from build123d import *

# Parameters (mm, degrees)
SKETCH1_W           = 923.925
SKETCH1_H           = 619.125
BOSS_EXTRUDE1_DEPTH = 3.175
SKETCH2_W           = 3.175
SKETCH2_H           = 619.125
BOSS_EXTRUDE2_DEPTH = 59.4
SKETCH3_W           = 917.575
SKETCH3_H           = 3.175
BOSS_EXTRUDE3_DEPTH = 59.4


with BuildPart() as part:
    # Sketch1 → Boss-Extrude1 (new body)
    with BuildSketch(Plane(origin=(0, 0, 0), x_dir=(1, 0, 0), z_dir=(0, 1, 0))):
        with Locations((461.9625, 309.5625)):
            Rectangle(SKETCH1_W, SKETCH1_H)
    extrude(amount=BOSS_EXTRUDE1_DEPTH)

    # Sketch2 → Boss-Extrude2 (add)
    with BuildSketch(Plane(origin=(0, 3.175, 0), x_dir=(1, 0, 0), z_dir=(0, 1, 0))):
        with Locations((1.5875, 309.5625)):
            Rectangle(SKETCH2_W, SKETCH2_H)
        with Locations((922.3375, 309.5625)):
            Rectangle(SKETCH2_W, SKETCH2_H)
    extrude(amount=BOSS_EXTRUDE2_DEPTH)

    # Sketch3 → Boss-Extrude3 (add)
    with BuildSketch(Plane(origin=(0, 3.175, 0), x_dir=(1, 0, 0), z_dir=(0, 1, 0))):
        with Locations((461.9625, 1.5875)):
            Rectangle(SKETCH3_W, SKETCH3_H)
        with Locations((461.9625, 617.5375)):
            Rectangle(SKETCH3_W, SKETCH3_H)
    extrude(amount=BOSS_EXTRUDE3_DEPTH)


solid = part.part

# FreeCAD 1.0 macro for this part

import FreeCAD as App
import Part
import Sketcher
Q = App.Units.Quantity


def add_polygon(sketch, points):
    """Adds a closed chain of lines whose ends are joined by coincident constraints."""
    first, n = sketch.GeometryCount, len(points)
    for a, b in zip(points, points[1:] + points[:1]):
        sketch.addGeometry(Part.LineSegment(App.Vector(*a, 0), App.Vector(*b, 0)), False)
    for i in range(n):
        sketch.addConstraint(Sketcher.Constraint("Coincident", first + i, 2, first + (i + 1) % n, 1))

doc = App.newDocument("Part")
body = doc.addObject("PartDesign::Body", "Body")

# Sketch on XZ plane
sketch1 = doc.addObject("Sketcher::SketchObject", "Sketch")
body.addObject(sketch1)
sketch1.AttachmentSupport = (doc.XZ_Plane, [""])
sketch1.MapMode = "FlatFace"
add_polygon(sketch1, [(0, -619), (0, 0), (924, 0), (924, -619)])  # lines 0-3
sketch1.addConstraint(Sketcher.Constraint("Vertical", 0))
sketch1.addConstraint(Sketcher.Constraint("Horizontal", 1))
sketch1.addConstraint(Sketcher.Constraint("Vertical", 2))
sketch1.addConstraint(Sketcher.Constraint("Horizontal", 3))
sketch1.addConstraint(Sketcher.Constraint("Coincident", 0, 2, -1, 1))
sketch1.addConstraint(Sketcher.Constraint("DistanceX", 1, 1, 1, 2, Q("36.375 in")))
sketch1.addConstraint(Sketcher.Constraint("DistanceY", 0, 1, 0, 2, Q("24.375 in")))
pad1 = doc.addObject("PartDesign::Pad", "Pad")
body.addObject(pad1)
pad1.Profile = sketch1
pad1.Length = Q("0.125 in")
pad1.Reversed = True

# Sketch on XZ plane
sketch2 = doc.addObject("Sketcher::SketchObject", "Sketch001")
body.addObject(sketch2)
sketch2.AttachmentSupport = (doc.XZ_Plane, [""])
sketch2.MapMode = "FlatFace"
sketch2.AttachmentOffset = App.Placement(App.Vector(0, 0, -0.125 * 25.4), App.Rotation())
add_polygon(sketch2, [(0, -619.1), (0, 0), (3.2, 0), (3.2, -619.1)])  # lines 0-3
add_polygon(sketch2, [(920.8, -619.1), (920.8, 0), (923.9, 0), (923.9, -619.1)])  # lines 4-7
sketch2.addConstraint(Sketcher.Constraint("Vertical", 0))
sketch2.addConstraint(Sketcher.Constraint("Horizontal", 1))
sketch2.addConstraint(Sketcher.Constraint("Vertical", 2))
sketch2.addConstraint(Sketcher.Constraint("Horizontal", 3))
sketch2.addConstraint(Sketcher.Constraint("Vertical", 4))
sketch2.addConstraint(Sketcher.Constraint("Horizontal", 5))
sketch2.addConstraint(Sketcher.Constraint("Vertical", 6))
sketch2.addConstraint(Sketcher.Constraint("Horizontal", 7))
sketch2.addConstraint(Sketcher.Constraint("Coincident", 0, 2, -1, 1))
sketch2.addConstraint(Sketcher.Constraint("PointOnObject", 4, 2, -1))
sketch2.addConstraint(Sketcher.Constraint("Horizontal", 3, 2, 6, 2))
sketch2.addConstraint(Sketcher.Constraint("Equal", 3, 5))
sketch2.addConstraint(Sketcher.Constraint("DistanceX", 1, 1, 1, 2, Q("0.125 in")))
sketch2.addConstraint(Sketcher.Constraint("DistanceY", 0, 1, 0, 2, Q("24.375 in")))
sketch2.addConstraint(Sketcher.Constraint("DistanceX", -1, 1, 4, 2, Q("36.25 in")))
pad2 = doc.addObject("PartDesign::Pad", "Pad001")
body.addObject(pad2)
pad2.Profile = sketch2
pad2.Length = 59.4
pad2.Reversed = True

# Sketch on XZ plane
sketch3 = doc.addObject("Sketcher::SketchObject", "Sketch002")
body.addObject(sketch3)
sketch3.AttachmentSupport = (doc.XZ_Plane, [""])
sketch3.MapMode = "FlatFace"
sketch3.AttachmentOffset = App.Placement(App.Vector(0, 0, -0.125 * 25.4), App.Rotation())
add_polygon(sketch3, [(3.2, -3.2), (3.2, 0), (920.8, 0), (920.8, -3.2)])  # lines 0-3
add_polygon(sketch3, [(3.2, -619.1), (3.2, -616), (920.8, -616), (920.8, -619.1)])  # lines 4-7
sketch3.addConstraint(Sketcher.Constraint("Vertical", 0))
sketch3.addConstraint(Sketcher.Constraint("Horizontal", 1))
sketch3.addConstraint(Sketcher.Constraint("Vertical", 2))
sketch3.addConstraint(Sketcher.Constraint("Horizontal", 3))
sketch3.addConstraint(Sketcher.Constraint("Vertical", 4))
sketch3.addConstraint(Sketcher.Constraint("Horizontal", 5))
sketch3.addConstraint(Sketcher.Constraint("Vertical", 6))
sketch3.addConstraint(Sketcher.Constraint("Horizontal", 7))
sketch3.addConstraint(Sketcher.Constraint("PointOnObject", 0, 2, -1))
sketch3.addConstraint(Sketcher.Constraint("Vertical", 3, 2, 4, 2))
sketch3.addConstraint(Sketcher.Constraint("Vertical", 2, 2, 5, 2))
sketch3.addConstraint(Sketcher.Constraint("Equal", 2, 4))
sketch3.addConstraint(Sketcher.Constraint("DistanceX", 1, 1, 1, 2, Q("36.125 in")))
sketch3.addConstraint(Sketcher.Constraint("DistanceY", 0, 1, 0, 2, Q("0.125 in")))
sketch3.addConstraint(Sketcher.Constraint("DistanceX", -1, 1, 1, 2, Q("36.25 in")))
sketch3.addConstraint(Sketcher.Constraint("DistanceY", 4, 2, -1, 1, Q("24.25 in")))
pad3 = doc.addObject("PartDesign::Pad", "Pad002")
body.addObject(pad3)
pad3.Profile = sketch3
pad3.Length = 59.4
pad3.Reversed = True

doc.recompute()
